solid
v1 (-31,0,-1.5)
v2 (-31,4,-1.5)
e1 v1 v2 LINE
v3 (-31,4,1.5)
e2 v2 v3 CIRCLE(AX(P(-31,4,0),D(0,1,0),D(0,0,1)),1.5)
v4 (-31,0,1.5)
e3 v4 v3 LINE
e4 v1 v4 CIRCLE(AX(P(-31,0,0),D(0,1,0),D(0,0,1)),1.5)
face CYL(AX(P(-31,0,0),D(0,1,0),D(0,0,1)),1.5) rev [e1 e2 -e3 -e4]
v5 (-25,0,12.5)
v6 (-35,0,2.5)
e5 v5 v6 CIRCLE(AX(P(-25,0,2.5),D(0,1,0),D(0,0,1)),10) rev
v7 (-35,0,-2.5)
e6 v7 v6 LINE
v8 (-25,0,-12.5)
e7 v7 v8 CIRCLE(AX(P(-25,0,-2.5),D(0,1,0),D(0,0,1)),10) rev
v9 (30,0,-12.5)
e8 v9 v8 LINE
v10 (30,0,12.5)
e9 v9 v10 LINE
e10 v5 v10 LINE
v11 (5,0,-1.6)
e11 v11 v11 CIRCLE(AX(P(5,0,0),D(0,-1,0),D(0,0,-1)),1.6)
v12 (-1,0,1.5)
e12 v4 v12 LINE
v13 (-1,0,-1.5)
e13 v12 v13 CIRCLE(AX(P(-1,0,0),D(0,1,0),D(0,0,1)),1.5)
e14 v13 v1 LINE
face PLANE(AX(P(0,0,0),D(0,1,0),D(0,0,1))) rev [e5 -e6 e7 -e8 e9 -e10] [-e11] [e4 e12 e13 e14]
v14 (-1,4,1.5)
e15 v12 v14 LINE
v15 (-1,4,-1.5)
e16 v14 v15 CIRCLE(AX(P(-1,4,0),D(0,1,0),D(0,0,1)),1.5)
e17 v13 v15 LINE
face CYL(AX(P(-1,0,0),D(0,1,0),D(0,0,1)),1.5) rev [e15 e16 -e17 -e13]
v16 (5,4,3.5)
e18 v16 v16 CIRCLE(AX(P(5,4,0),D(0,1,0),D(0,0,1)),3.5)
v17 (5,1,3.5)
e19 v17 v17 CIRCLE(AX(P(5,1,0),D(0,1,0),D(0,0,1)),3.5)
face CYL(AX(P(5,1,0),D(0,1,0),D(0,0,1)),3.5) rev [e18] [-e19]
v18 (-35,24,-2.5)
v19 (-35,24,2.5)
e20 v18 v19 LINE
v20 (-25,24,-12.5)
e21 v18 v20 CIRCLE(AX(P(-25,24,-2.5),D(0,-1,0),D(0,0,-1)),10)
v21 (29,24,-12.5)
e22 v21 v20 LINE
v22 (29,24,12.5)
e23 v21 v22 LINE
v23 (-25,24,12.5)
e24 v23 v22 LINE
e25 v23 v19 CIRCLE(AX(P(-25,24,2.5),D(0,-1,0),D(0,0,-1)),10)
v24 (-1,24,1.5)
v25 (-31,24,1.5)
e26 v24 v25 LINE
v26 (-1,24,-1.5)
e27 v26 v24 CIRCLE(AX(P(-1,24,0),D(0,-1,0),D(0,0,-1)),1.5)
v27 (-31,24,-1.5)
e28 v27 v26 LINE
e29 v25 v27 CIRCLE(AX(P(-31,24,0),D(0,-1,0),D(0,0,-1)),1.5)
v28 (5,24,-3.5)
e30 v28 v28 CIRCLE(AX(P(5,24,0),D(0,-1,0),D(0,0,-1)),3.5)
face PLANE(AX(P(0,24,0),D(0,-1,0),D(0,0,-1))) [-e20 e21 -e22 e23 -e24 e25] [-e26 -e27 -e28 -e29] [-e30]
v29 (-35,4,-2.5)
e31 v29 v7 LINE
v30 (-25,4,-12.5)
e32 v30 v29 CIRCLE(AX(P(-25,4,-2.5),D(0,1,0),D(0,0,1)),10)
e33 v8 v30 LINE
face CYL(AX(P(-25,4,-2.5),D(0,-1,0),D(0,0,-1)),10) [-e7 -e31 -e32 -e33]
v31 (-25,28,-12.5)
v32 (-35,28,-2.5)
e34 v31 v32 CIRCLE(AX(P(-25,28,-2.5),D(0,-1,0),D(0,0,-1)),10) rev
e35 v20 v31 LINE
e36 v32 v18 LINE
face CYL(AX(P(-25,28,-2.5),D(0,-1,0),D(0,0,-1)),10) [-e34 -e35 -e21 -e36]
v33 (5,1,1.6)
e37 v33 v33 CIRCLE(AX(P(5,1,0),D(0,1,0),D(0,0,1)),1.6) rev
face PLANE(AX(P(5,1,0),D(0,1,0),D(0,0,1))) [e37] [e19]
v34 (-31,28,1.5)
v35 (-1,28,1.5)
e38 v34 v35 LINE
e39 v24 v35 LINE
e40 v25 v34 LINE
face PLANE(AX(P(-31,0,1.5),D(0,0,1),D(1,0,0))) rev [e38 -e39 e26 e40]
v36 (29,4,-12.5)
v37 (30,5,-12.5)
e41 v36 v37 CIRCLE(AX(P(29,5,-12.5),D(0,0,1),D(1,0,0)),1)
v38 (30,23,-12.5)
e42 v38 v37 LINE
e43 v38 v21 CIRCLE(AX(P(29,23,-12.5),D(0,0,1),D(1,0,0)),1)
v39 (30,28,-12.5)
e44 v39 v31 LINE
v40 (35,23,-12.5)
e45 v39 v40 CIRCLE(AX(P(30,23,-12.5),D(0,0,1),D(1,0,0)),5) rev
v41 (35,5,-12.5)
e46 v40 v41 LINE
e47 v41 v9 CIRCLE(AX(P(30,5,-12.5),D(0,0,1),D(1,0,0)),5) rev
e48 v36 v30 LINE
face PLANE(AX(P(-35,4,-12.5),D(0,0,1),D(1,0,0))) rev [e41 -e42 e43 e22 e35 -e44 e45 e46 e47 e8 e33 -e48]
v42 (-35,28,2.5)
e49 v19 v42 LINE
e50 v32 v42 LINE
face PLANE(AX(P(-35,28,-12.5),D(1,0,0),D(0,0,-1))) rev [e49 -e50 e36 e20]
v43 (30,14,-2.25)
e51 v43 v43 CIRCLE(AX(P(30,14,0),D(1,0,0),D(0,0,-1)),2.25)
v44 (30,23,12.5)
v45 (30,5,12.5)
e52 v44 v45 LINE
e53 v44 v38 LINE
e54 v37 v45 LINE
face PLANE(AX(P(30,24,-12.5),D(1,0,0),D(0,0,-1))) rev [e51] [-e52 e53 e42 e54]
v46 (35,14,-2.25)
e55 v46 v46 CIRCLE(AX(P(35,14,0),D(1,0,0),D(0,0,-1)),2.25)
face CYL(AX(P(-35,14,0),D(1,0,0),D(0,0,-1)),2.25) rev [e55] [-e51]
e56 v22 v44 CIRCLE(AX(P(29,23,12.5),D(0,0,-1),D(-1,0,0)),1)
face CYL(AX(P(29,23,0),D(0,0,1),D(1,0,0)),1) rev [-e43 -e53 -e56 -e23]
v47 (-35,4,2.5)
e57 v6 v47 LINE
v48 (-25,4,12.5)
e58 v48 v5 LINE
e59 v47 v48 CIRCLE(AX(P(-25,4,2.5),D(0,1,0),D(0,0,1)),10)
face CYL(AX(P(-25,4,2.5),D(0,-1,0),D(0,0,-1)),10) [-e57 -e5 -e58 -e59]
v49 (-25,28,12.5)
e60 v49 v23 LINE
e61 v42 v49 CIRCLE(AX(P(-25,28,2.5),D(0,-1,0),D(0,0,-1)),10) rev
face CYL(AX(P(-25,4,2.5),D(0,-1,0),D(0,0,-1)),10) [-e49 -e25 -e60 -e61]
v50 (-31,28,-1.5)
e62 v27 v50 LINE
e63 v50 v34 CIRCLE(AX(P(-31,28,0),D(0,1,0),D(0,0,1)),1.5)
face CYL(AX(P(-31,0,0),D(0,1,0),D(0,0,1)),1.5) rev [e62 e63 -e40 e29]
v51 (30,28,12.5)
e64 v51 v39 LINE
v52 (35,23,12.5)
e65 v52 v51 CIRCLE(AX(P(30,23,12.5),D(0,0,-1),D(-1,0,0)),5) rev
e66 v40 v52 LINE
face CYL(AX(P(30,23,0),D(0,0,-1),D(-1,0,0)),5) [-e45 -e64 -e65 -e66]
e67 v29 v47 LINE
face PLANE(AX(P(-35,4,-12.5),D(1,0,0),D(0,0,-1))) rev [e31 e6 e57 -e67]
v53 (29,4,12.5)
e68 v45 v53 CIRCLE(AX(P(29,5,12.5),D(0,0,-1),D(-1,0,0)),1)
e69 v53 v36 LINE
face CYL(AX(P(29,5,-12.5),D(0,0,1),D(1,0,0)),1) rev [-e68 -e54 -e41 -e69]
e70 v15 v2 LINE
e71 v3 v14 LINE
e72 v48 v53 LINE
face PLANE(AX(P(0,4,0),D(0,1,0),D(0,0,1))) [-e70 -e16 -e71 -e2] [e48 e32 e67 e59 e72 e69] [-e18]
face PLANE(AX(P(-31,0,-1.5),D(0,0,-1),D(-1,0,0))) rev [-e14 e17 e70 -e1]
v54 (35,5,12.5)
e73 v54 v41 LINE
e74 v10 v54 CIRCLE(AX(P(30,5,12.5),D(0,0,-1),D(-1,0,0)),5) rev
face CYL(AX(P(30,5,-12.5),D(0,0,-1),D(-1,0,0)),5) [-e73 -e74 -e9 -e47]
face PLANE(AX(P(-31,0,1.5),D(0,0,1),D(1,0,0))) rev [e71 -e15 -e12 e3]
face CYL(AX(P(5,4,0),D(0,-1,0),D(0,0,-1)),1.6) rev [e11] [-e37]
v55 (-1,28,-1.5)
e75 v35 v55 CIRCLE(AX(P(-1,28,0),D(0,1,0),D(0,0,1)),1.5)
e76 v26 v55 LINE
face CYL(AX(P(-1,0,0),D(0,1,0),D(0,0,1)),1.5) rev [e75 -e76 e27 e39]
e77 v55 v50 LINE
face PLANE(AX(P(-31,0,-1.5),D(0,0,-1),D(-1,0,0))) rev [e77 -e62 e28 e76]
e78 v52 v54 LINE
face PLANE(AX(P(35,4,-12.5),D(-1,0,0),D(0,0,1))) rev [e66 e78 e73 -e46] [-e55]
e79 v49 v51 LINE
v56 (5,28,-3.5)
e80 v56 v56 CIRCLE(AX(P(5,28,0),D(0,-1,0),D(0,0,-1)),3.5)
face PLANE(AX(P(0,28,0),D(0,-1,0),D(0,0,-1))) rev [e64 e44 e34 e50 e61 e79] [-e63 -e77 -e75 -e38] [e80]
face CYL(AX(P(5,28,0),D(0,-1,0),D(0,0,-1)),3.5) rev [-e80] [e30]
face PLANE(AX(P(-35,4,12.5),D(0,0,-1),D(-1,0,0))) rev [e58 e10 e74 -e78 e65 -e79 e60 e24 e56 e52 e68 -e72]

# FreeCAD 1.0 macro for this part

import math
import FreeCAD as App
import Part
import Sketcher
from FreeCAD import Vector


def edges_at(feature, points):
    """Names of the edges that pass closest to the given points."""
    edges = feature.Shape.Edges
    near = lambda p: min(range(len(edges)), key=lambda i: edges[i].distToShape(Part.Vertex(*p))[0])
    return sorted({f"Edge{near(p) + 1}" for p in points})


def add_polygon(sketch, points):
    """Adds a closed chain of lines whose ends are joined by coincident constraints."""
    first, n = sketch.GeometryCount, len(points)
    for a, b in zip(points, points[1:] + points[:1]):
        sketch.addGeometry(Part.LineSegment(App.Vector(*a, 0), App.Vector(*b, 0)), False)
    for i in range(n):
        sketch.addConstraint(Sketcher.Constraint("Coincident", first + i, 2, first + (i + 1) % n, 1))

doc = App.newDocument("Part")
params = doc.addObject("Spreadsheet::Sheet", "Params")
for row, (alias, value) in enumerate([
    ("sketch1_width", "70 mm"),
    ("sketch1_height", "25 mm"),
    ("pad1_length", "4 mm"),
    ("sketch2_width", "5 mm"),
    ("sketch2_height", "25 mm"),
    ("pad2_length", "20 mm"),
    ("sketch3_width", "70 mm"),
    ("sketch3_height", "25 mm"),
    ("pad3_length", "4 mm"),
    ("sketch4_diameter", "3.2 mm"),
    ("pocket1_length", "4 mm"),
    ("sketch5_diameter", "7 mm"),
    ("pocket2_length", "3 mm"),
    ("sketch6_diameter", "7 mm"),
    ("sketch7_radius", "1.5 mm"),
    ("sketch7_width", "30 mm"),
    ("fillet_radius", "10 mm"),
    ("sketch8_diameter", "4.5 mm"),
    ("fillet2_radius", "1 mm"),
    ("fillet3_radius", "5 mm"),
], start=1):
    params.set(f"A{row}", alias)
    params.set(f"B{row}", "=" + value)
    params.setAlias(f"B{row}", alias)

body = doc.addObject("PartDesign::Body", "Body")

sketch1 = body.newObject("Sketcher::SketchObject", "Sketch")
sketch1.AttachmentSupport = (doc.getObject("XZ_Plane"), [""])
sketch1.MapMode = "FlatFace"
add_polygon(sketch1, [(-35, -12.5), (-35, 12.5), (35, 12.5), (35, -12.5)])
sketch1.addConstraint([
    Sketcher.Constraint("Vertical", 0),
    Sketcher.Constraint("Horizontal", 1),
    Sketcher.Constraint("Vertical", 2),
    Sketcher.Constraint("Horizontal", 3),
    Sketcher.Constraint("Symmetric", 0, 2, 2, 2, -1, 1),
    Sketcher.Constraint("DistanceX", 1, 1, 1, 2, 70.0),
    Sketcher.Constraint("DistanceY", 0, 1, 0, 2, 25.0),
])
sketch1.setExpression("Constraints[9]", "Params.sketch1_width")
sketch1.setExpression("Constraints[10]", "Params.sketch1_height")
pad1 = body.newObject("PartDesign::Pad", "Pad")
pad1.Profile = sketch1
pad1.setExpression("Length", "Params.pad1_length")
pad1.Reversed = True

sketch2 = body.newObject("Sketcher::SketchObject", "Sketch001")
sketch2.AttachmentSupport = (doc.getObject("XZ_Plane"), [""])
sketch2.MapMode = "FlatFace"
sketch2.AttachmentOffset = App.Placement(Vector(0, 0, -4), App.Rotation())
add_polygon(sketch2, [(30, -12.5), (30, 12.5), (35, 12.5), (35, -12.5)])
sketch2.addConstraint([
    Sketcher.Constraint("Vertical", 0),
    Sketcher.Constraint("Horizontal", 1),
    Sketcher.Constraint("Vertical", 2),
    Sketcher.Constraint("Horizontal", 3),
    Sketcher.Constraint("DistanceX", 1, 1, 1, 2, 5.0),
    Sketcher.Constraint("DistanceY", 0, 1, 0, 2, 25.0),
    Sketcher.Constraint("DistanceX", -1, 1, 0, 2, 30.0),
    Sketcher.Constraint("DistanceY", -1, 1, 0, 2, 12.5),
])
sketch2.setExpression("Constraints[8]", "Params.sketch2_width")
sketch2.setExpression("Constraints[9]", "Params.sketch2_height")
pad2 = body.newObject("PartDesign::Pad", "Pad001")
pad2.Profile = sketch2
pad2.setExpression("Length", "Params.pad2_length")
pad2.Reversed = True

sketch3 = body.newObject("Sketcher::SketchObject", "Sketch002")
sketch3.AttachmentSupport = (doc.getObject("XZ_Plane"), [""])
sketch3.MapMode = "FlatFace"
sketch3.AttachmentOffset = App.Placement(Vector(0, 0, -24), App.Rotation())
add_polygon(sketch3, [(-35, -12.5), (-35, 12.5), (35, 12.5), (35, -12.5)])
sketch3.addConstraint([
    Sketcher.Constraint("Vertical", 0),
    Sketcher.Constraint("Horizontal", 1),
    Sketcher.Constraint("Vertical", 2),
    Sketcher.Constraint("Horizontal", 3),
    Sketcher.Constraint("Symmetric", 0, 2, 2, 2, -1, 1),
    Sketcher.Constraint("DistanceX", 1, 1, 1, 2, 70.0),
    Sketcher.Constraint("DistanceY", 0, 1, 0, 2, 25.0),
])
sketch3.setExpression("Constraints[9]", "Params.sketch3_width")
sketch3.setExpression("Constraints[10]", "Params.sketch3_height")
pad3 = body.newObject("PartDesign::Pad", "Pad002")
pad3.Profile = sketch3
pad3.setExpression("Length", "Params.pad3_length")
pad3.Reversed = True

sketch4 = body.newObject("Sketcher::SketchObject", "Sketch003")
sketch4.AttachmentSupport = (doc.getObject("XZ_Plane"), [""])
sketch4.MapMode = "FlatFace"
sketch4.addGeometry(Part.Circle(Vector(5, 0, 0), Vector(0, 0, 1), 1.6), False)
sketch4.addConstraint([
    Sketcher.Constraint("PointOnObject", 0, 3, -1),
    Sketcher.Constraint("Diameter", 0, 3.2),
    Sketcher.Constraint("DistanceX", -1, 1, 0, 3, 5.0),
])
sketch4.setExpression("Constraints[1]", "Params.sketch4_diameter")
pocket1 = body.newObject("PartDesign::Pocket", "Pocket")
pocket1.Profile = sketch4
pocket1.setExpression("Length", "Params.pocket1_length")

sketch5 = body.newObject("Sketcher::SketchObject", "Sketch004")
sketch5.AttachmentSupport = (doc.getObject("XZ_Plane"), [""])
sketch5.MapMode = "FlatFace"
sketch5.AttachmentOffset = App.Placement(Vector(0, 0, -4), App.Rotation())
sketch5.addGeometry(Part.Circle(Vector(5, 0, 0), Vector(0, 0, 1), 3.5), False)
sketch5.addConstraint([
    Sketcher.Constraint("PointOnObject", 0, 3, -1),
    Sketcher.Constraint("Diameter", 0, 7.0),
    Sketcher.Constraint("DistanceX", -1, 1, 0, 3, 5.0),
])
sketch5.setExpression("Constraints[1]", "Params.sketch5_diameter")
pocket2 = body.newObject("PartDesign::Pocket", "Pocket001")
pocket2.Profile = sketch5
pocket2.setExpression("Length", "Params.pocket2_length")
pocket2.Reversed = True

sketch6 = body.newObject("Sketcher::SketchObject", "Sketch005")
sketch6.AttachmentSupport = (doc.getObject("XZ_Plane"), [""])
sketch6.MapMode = "FlatFace"
sketch6.AttachmentOffset = App.Placement(Vector(0, 0, -24), App.Rotation())
sketch6.addGeometry(Part.Circle(Vector(5, 0, 0), Vector(0, 0, 1), 3.5), False)
sketch6.addConstraint([
    Sketcher.Constraint("PointOnObject", 0, 3, -1),
    Sketcher.Constraint("Diameter", 0, 7.0),
    Sketcher.Constraint("DistanceX", -1, 1, 0, 3, 5.0),
])
sketch6.setExpression("Constraints[1]", "Params.sketch6_diameter")
pocket3 = body.newObject("PartDesign::Pocket", "Pocket002")
pocket3.Profile = sketch6
pocket3.Type = "ThroughAll"

sketch7 = body.newObject("Sketcher::SketchObject", "Sketch006")
sketch7.AttachmentSupport = (doc.getObject("XZ_Plane"), [""])
sketch7.MapMode = "FlatFace"
sketch7.AttachmentOffset = App.Placement(Vector(0, 0, -28), App.Rotation())
sketch7.addGeometry([
    Part.LineSegment(Vector(-1, -1.5, 0), Vector(-31, -1.5, 0)),
    Part.ArcOfCircle(Part.Circle(Vector(-31, 0, 0), Vector(0, 0, 1), 1.5), math.radians(90), math.radians(270)),
    Part.LineSegment(Vector(-31, 1.5, 0), Vector(-1, 1.5, 0)),
    Part.ArcOfCircle(Part.Circle(Vector(-1, 0, 0), Vector(0, 0, 1), 1.5), math.radians(-90), math.radians(90)),
], False)
sketch7.addConstraint([
    Sketcher.Constraint("Tangent", 0, 2, 1, 2),
    Sketcher.Constraint("Tangent", 1, 1, 2, 1),
    Sketcher.Constraint("Tangent", 2, 2, 3, 2),
    Sketcher.Constraint("Tangent", 3, 1, 0, 1),
    Sketcher.Constraint("Horizontal", 0),
    Sketcher.Constraint("Horizontal", 2),
    Sketcher.Constraint("PointOnObject", 1, 3, -1),
    Sketcher.Constraint("Radius", 1, 1.5),
    Sketcher.Constraint("DistanceX", 0, 2, 0, 1, 30.0),
    Sketcher.Constraint("DistanceX", 1, 3, -1, 1, 31.0),
])
sketch7.setExpression("Constraints[7]", "Params.sketch7_radius")
sketch7.setExpression("Constraints[8]", "Params.sketch7_width")
pocket4 = body.newObject("PartDesign::Pocket", "Pocket003")
pocket4.Profile = sketch7
pocket4.Type = "ThroughAll"
pocket4.Reversed = True
doc.recompute()

fillet = body.newObject("PartDesign::Fillet", "Fillet")
fillet.Base = (pocket4, edges_at(pocket4, [
    (-35, 26, -12.5),
    (-35, 26, 12.5),
    (-35, 2, 12.5),
    (-35, 2, -12.5),
]))
fillet.setExpression("Radius", "Params.fillet_radius")

sketch8 = body.newObject("Sketcher::SketchObject", "Sketch007")
sketch8.AttachmentSupport = (doc.getObject("YZ_Plane"), [""])
sketch8.MapMode = "FlatFace"
sketch8.AttachmentOffset = App.Placement(Vector(0, 0, 35), App.Rotation())
sketch8.addGeometry(Part.Circle(Vector(14, 0, 0), Vector(0, 0, 1), 2.25), False)
sketch8.addConstraint([
    Sketcher.Constraint("PointOnObject", 0, 3, -1),
    Sketcher.Constraint("Diameter", 0, 4.5),
    Sketcher.Constraint("DistanceX", -1, 1, 0, 3, 14.0),
])
sketch8.setExpression("Constraints[1]", "Params.sketch8_diameter")
pocket5 = body.newObject("PartDesign::Pocket", "Pocket004")
pocket5.Profile = sketch8
pocket5.Type = "ThroughAll"
doc.recompute()

fillet2 = body.newObject("PartDesign::Fillet", "Fillet001")
fillet2.Base = (pocket5, edges_at(pocket5, [(30, 4, 0), (30, 24, 0)]))
fillet2.setExpression("Radius", "Params.fillet2_radius")
doc.recompute()

fillet3 = body.newObject("PartDesign::Fillet", "Fillet002")
fillet3.Base = (fillet2, edges_at(fillet2, [(35, 28, 0), (35, 0, 0)]))
fillet3.setExpression("Radius", "Params.fillet3_radius")

doc.recompute()
